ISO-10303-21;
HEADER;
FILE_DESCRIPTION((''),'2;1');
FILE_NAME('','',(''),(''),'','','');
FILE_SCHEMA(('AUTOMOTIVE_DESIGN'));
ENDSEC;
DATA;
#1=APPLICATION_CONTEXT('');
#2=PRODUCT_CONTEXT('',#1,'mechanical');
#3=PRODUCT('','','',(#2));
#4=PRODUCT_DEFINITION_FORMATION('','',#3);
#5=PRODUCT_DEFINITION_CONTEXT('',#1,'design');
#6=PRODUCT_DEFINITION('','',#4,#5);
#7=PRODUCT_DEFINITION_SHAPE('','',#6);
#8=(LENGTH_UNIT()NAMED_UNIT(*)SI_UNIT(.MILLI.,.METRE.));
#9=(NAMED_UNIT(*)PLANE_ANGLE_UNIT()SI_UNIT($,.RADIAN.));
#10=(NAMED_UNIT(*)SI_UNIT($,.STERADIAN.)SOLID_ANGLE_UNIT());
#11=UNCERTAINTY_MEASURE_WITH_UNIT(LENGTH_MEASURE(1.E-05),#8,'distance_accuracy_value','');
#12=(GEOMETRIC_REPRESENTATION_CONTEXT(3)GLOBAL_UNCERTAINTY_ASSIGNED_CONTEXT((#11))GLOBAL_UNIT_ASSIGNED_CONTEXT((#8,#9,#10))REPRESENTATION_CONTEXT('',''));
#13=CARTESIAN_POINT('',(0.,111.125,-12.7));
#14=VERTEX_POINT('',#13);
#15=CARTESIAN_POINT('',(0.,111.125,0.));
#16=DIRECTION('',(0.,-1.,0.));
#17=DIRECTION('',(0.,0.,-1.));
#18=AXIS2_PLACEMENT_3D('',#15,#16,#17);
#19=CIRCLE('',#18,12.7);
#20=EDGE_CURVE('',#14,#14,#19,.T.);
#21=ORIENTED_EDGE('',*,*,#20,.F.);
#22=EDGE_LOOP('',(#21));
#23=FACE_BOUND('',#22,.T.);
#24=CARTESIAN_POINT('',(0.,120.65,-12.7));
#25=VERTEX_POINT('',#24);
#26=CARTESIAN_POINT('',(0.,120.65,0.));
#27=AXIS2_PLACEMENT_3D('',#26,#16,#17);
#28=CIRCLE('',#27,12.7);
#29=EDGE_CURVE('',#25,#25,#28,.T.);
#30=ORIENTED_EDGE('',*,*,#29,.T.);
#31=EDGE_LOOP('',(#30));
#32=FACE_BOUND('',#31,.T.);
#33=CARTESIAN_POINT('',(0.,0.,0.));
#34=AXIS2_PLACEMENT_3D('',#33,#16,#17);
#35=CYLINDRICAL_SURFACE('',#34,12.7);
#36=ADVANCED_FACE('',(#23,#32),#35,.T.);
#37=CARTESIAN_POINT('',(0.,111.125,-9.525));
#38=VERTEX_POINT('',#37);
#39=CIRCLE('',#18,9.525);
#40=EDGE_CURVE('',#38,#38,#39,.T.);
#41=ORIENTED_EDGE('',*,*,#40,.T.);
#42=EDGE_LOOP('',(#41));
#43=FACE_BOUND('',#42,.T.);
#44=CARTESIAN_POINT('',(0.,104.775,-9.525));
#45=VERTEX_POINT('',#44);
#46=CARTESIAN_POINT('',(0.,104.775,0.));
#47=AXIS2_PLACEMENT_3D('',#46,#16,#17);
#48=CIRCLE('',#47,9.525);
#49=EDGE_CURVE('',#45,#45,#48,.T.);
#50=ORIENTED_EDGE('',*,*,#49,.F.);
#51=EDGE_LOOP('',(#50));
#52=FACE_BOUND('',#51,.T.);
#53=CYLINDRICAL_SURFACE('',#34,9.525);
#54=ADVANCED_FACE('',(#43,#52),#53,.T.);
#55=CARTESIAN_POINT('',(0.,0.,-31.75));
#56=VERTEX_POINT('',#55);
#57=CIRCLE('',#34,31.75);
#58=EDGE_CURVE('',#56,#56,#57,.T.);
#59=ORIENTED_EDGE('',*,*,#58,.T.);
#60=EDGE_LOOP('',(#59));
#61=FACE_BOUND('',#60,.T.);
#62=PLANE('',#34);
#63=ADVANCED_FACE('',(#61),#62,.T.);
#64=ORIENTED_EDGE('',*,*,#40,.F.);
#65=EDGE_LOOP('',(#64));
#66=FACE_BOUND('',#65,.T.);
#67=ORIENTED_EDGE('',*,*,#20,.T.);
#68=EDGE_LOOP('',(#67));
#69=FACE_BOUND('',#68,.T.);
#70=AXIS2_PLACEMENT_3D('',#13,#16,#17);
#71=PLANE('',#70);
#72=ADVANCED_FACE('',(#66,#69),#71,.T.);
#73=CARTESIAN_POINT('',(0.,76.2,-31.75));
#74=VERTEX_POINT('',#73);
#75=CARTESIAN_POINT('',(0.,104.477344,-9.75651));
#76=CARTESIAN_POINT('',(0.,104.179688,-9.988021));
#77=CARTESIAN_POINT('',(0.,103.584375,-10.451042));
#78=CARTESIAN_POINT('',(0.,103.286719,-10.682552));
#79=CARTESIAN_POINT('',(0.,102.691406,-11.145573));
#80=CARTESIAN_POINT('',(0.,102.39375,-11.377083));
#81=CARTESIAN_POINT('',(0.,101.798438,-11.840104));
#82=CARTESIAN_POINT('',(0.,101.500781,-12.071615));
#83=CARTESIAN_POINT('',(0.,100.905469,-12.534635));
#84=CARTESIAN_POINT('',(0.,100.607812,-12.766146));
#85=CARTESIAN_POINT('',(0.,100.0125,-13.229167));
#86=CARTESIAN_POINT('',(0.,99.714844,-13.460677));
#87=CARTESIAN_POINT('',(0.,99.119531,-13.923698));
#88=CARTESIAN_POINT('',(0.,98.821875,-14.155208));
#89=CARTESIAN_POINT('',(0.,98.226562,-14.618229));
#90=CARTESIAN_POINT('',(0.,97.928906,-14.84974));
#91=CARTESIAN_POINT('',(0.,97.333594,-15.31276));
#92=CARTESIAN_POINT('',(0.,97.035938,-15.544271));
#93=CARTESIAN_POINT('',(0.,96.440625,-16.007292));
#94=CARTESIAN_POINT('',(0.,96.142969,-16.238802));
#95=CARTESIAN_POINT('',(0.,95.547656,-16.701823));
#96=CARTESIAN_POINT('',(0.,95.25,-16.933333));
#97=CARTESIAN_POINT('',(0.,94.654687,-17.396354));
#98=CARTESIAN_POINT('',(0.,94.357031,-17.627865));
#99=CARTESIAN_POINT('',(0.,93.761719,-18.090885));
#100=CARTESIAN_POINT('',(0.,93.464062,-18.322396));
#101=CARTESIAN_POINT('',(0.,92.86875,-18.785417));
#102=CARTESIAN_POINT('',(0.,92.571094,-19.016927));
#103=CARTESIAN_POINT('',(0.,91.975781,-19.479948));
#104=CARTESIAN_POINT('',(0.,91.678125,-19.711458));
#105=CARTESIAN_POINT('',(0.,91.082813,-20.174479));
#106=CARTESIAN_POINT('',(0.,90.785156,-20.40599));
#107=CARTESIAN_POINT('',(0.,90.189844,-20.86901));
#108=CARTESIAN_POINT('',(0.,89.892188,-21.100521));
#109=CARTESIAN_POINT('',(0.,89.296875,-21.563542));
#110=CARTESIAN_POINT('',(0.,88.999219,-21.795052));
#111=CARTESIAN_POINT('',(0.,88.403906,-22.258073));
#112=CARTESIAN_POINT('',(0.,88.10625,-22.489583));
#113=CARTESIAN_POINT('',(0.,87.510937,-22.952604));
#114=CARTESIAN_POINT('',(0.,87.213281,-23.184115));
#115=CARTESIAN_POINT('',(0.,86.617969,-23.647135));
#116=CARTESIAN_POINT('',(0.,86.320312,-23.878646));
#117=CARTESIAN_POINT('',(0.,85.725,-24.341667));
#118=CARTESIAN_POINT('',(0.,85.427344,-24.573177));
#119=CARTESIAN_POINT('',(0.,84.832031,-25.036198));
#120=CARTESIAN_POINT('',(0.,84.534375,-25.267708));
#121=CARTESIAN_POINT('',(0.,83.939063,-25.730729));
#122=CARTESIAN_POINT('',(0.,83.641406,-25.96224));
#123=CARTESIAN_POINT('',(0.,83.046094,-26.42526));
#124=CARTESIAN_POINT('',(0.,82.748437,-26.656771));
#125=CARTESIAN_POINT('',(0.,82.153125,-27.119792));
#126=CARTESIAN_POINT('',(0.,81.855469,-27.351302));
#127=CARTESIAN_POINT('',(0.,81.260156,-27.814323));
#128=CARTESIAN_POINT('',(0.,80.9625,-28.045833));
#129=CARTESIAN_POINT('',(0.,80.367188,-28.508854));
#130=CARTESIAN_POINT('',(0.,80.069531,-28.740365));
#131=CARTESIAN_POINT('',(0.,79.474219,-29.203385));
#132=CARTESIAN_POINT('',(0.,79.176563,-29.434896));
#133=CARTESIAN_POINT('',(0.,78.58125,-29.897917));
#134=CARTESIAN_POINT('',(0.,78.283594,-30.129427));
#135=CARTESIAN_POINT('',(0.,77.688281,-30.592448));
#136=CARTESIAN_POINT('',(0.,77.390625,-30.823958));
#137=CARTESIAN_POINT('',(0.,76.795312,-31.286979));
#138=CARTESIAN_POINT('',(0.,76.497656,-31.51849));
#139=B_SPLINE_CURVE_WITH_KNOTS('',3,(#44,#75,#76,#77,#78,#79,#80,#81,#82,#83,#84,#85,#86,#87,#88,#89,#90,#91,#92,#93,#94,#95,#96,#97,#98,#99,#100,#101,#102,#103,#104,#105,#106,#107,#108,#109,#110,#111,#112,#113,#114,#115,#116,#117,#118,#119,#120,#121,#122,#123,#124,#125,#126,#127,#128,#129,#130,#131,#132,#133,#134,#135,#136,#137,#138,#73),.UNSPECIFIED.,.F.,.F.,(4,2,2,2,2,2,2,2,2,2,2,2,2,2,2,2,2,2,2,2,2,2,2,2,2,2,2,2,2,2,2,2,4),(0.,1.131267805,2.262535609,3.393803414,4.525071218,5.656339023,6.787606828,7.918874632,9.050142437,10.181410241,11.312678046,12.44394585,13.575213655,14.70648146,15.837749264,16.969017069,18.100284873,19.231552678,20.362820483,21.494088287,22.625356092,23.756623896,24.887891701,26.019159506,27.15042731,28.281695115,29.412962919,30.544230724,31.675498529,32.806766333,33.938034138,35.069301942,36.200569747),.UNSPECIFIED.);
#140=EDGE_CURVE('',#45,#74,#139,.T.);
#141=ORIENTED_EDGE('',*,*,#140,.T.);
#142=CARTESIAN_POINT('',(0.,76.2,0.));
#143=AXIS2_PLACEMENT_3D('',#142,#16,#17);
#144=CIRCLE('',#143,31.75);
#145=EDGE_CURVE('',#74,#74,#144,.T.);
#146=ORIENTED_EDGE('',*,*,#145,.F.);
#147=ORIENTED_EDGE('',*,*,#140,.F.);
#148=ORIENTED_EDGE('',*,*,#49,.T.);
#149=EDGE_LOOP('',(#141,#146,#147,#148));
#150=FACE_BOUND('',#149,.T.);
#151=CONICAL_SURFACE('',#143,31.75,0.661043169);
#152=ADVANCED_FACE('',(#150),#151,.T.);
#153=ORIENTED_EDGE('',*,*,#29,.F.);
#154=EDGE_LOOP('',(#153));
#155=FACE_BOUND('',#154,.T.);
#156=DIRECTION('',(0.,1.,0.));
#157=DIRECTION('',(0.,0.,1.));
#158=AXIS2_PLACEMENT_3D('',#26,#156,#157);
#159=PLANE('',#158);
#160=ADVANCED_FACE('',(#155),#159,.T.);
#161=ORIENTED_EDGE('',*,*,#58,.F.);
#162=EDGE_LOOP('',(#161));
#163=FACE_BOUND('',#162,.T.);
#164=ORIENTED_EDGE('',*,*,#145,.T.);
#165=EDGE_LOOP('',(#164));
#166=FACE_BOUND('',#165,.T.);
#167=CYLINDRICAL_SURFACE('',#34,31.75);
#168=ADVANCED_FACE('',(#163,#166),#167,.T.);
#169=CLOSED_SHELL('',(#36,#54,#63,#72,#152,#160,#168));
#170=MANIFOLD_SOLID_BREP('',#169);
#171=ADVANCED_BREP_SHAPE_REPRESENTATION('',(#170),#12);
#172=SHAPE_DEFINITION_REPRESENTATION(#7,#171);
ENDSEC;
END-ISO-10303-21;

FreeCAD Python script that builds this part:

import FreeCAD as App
import Part
import Sketcher
from FreeCAD import Vector
Q = App.Units.Quantity


def add_polygon(sketch, points):
    """Adds a closed chain of lines whose ends are joined by coincident constraints."""
    first, n = sketch.GeometryCount, len(points)
    for a, b in zip(points, points[1:] + points[:1]):
        sketch.addGeometry(Part.LineSegment(App.Vector(*a, 0), App.Vector(*b, 0)), False)
    for i in range(n):
        sketch.addConstraint(Sketcher.Constraint("Coincident", first + i, 2, first + (i + 1) % n, 1))

doc = App.newDocument("Part")
body = doc.addObject("PartDesign::Body", "Body")

sketch1 = body.newObject("Sketcher::SketchObject", "Sketch")
sketch1.AttachmentSupport = (doc.getObject("YZ_Plane"), [""])
sketch1.MapMode = "FlatFace"
add_polygon(sketch1, [(120.7, 0), (0, 0), (0, -31.8), (76.2, -31.8), (104.8, -9.5), (111.1, -9.5), (111.1, -12.7), (120.7, -12.7)])
sketch1.addConstraint([
    Sketcher.Constraint("Horizontal", 0),
    Sketcher.Constraint("Vertical", 1),
    Sketcher.Constraint("Horizontal", 2),
    Sketcher.Constraint("Horizontal", 4),
    Sketcher.Constraint("Vertical", 5),
    Sketcher.Constraint("Horizontal", 6),
    Sketcher.Constraint("Vertical", 7),
    Sketcher.Constraint("Coincident", 0, 2, -1, 1),
    Sketcher.Constraint("DistanceX", 2, 1, 2, 2, Q("3 in")),
    Sketcher.Constraint("DistanceY", 7, 1, 7, 2, Q("0.5 in")),
    Sketcher.Constraint("DistanceX", 0, 2, 0, 1, Q("4.75 in")),
    Sketcher.Constraint("DistanceX", 4, 1, 4, 2, Q("0.25 in")),
    Sketcher.Constraint("DistanceY", 1, 2, 1, 1, Q("1.25 in")),
    Sketcher.Constraint("DistanceX", 6, 1, 6, 2, Q("0.375 in")),
    Sketcher.Constraint("DistanceY", 5, 2, 5, 1, Q("0.125 in")),
])
revolution = body.newObject("PartDesign::Revolution", "Revolution")
revolution.Profile = sketch1
revolution.ReferenceAxis = (sketch1, ["H_Axis"])
revolution.Angle = 360

doc.recompute()
